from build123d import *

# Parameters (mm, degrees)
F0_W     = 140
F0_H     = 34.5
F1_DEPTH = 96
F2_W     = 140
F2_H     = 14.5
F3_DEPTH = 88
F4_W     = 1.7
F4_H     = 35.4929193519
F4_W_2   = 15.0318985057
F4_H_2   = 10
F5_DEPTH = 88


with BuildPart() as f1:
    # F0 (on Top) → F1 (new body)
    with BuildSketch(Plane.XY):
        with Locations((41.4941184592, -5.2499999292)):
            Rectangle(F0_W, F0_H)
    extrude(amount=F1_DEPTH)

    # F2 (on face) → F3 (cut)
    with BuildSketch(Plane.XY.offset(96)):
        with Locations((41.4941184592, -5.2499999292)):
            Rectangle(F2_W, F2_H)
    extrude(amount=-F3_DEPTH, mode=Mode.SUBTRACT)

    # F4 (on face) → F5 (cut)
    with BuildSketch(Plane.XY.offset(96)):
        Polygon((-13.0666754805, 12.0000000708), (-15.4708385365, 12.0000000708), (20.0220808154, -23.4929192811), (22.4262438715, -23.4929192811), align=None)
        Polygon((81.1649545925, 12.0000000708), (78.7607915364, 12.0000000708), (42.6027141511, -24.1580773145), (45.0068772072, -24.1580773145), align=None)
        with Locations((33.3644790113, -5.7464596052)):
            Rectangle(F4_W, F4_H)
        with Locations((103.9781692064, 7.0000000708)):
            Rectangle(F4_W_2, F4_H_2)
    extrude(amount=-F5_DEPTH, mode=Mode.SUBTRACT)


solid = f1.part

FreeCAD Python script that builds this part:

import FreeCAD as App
import Part
import Sketcher

V = App.Vector
Q = App.Units.Quantity


def add_polygon(sketch, points):
    """Adds a closed chain of lines whose ends are joined by coincident constraints."""
    first, n = sketch.GeometryCount, len(points)
    for a, b in zip(points, points[1:] + points[:1]):
        sketch.addGeometry(Part.LineSegment(App.Vector(*a, 0), App.Vector(*b, 0)), False)
    for i in range(n):
        sketch.addConstraint(Sketcher.Constraint("Coincident", first + i, 2, first + (i + 1) % n, 1))

doc = App.newDocument("Part")
body = doc.addObject("PartDesign::Body", "Body")

sketch1 = body.newObject("Sketcher::SketchObject", "Sketch")
sketch1.AttachmentSupport = (doc.getObject("XY_Plane"), [""])
sketch1.MapMode = "FlatFace"
add_polygon(sketch1, [(-28.505882, 12), (-28.505882, -22.5), (111.494118, -22.5), (111.494118, 12)])
sketch1.addConstraint([
    Sketcher.Constraint("Vertical", 0),
    Sketcher.Constraint("Horizontal", 1),
    Sketcher.Constraint("Vertical", 2),
    Sketcher.Constraint("Horizontal", 3),
    Sketcher.Constraint("DistanceX", 1, 1, 1, 2, Q("140 mm")),
    Sketcher.Constraint("DistanceY", 0, 2, 0, 1, Q("34.5 mm")),
    Sketcher.Constraint("DistanceY", -1, 1, 2, 2, Q("12 mm")),
    Sketcher.Constraint("DistanceX", 0, 2, -1, 1, Q("28.505882 mm")),
])
pad1 = body.newObject("PartDesign::Pad", "Pad")
pad1.Profile = sketch1
pad1.Length = 96

sketch2 = body.newObject("Sketcher::SketchObject", "Sketch001")
sketch2.AttachmentSupport = (doc.getObject("XY_Plane"), [""])
sketch2.MapMode = "FlatFace"
sketch2.AttachmentOffset = App.Placement(V(0, 0, 96), App.Rotation())
add_polygon(sketch2, [(-28.505882, 2), (-28.505882, -12.5), (111.494118, -12.5), (111.494118, 2)])
sketch2.addConstraint([
    Sketcher.Constraint("Vertical", 0),
    Sketcher.Constraint("Horizontal", 1),
    Sketcher.Constraint("Vertical", 2),
    Sketcher.Constraint("Horizontal", 3),
    Sketcher.Constraint("DistanceX", 1, 1, 1, 2, Q("140 mm")),
    Sketcher.Constraint("DistanceY", 0, 2, 0, 1, Q("14.5 mm")),
    Sketcher.Constraint("DistanceY", -1, 1, 2, 2, Q("2 mm")),
    Sketcher.Constraint("DistanceX", 0, 2, -1, 1, Q("28.505882 mm")),
])
pocket1 = body.newObject("PartDesign::Pocket", "Pocket")
pocket1.Profile = sketch2
pocket1.Length = 88

sketch3 = body.newObject("Sketcher::SketchObject", "Sketch002")
sketch3.AttachmentSupport = (doc.getObject("XY_Plane"), [""])
sketch3.MapMode = "FlatFace"
sketch3.AttachmentOffset = App.Placement(V(0, 0, 96), App.Rotation())
add_polygon(sketch3, [(-13.066675, 12), (-15.470839, 12), (20.022081, -23.492919), (22.426244, -23.492919)])
add_polygon(sketch3, [(81.164955, 12), (78.760792, 12), (42.602714, -24.158077), (45.006877, -24.158077)])
add_polygon(sketch3, [(32.514479, 12), (32.514479, -23.492919), (34.214479, -23.492919), (34.214479, 12)])
add_polygon(sketch3, [(96.46222, 12), (96.46222, 2), (111.494118, 2), (111.494118, 12)])
sketch3.addConstraint([
    Sketcher.Constraint("Horizontal", 0),
    Sketcher.Constraint("Horizontal", 2),
    Sketcher.Constraint("Horizontal", 4),
    Sketcher.Constraint("Horizontal", 6),
    Sketcher.Constraint("Vertical", 8),
    Sketcher.Constraint("Horizontal", 9),
    Sketcher.Constraint("Vertical", 10),
    Sketcher.Constraint("Horizontal", 11),
    Sketcher.Constraint("Vertical", 12),
    Sketcher.Constraint("Horizontal", 13),
    Sketcher.Constraint("Vertical", 14),
    Sketcher.Constraint("Horizontal", 15),
    Sketcher.Constraint("Parallel", 1, 3),
    Sketcher.Constraint("Perpendicular", 3, 5),
    Sketcher.Constraint("Parallel", 5, 7),
    Sketcher.Constraint("Horizontal", 3, 2, 4, 2),
    Sketcher.Constraint("Horizontal", 2, 2, 8, 2),
    Sketcher.Constraint("Horizontal", 7, 2, 10, 2),
    Sketcher.Constraint("Horizontal", 11, 2, 14, 2),
    Sketcher.Constraint("Equal", 2, 4),
    Sketcher.Constraint("DistanceY", 12, 2, 12, 1, Q("10 mm")),
    Sketcher.Constraint("Angle", 1, Q("-45 deg")),
    Sketcher.Constraint("DistanceX", 9, 1, 9, 2, Q("1.7 mm")),
    Sketcher.Constraint("DistanceY", -1, 1, 0, 2, Q("12 mm")),
    Sketcher.Constraint("DistanceX", 13, 1, 13, 2, Q("15.031899 mm")),
    Sketcher.Constraint("DistanceY", 8, 2, 8, 1, Q("35.492919 mm")),
    Sketcher.Constraint("DistanceX", 1, 2, 8, 2, Q("12.492398 mm")),
    Sketcher.Constraint("DistanceX", 8, 2, 6, 2, Q("12.492398 mm")),
    Sketcher.Constraint("DistanceX", 0, 2, 0, 1, Q("2.404163 mm")),
    Sketcher.Constraint("DistanceX", 0, 2, -1, 1, Q("15.470839 mm")),
    Sketcher.Constraint("DistanceX", -1, 1, 4, 2, Q("78.760792 mm")),
    Sketcher.Constraint("DistanceX", -1, 1, 12, 2, Q("96.46222 mm")),
])
pocket2 = body.newObject("PartDesign::Pocket", "Pocket001")
pocket2.Profile = sketch3
pocket2.Length = 88

doc.recompute()
